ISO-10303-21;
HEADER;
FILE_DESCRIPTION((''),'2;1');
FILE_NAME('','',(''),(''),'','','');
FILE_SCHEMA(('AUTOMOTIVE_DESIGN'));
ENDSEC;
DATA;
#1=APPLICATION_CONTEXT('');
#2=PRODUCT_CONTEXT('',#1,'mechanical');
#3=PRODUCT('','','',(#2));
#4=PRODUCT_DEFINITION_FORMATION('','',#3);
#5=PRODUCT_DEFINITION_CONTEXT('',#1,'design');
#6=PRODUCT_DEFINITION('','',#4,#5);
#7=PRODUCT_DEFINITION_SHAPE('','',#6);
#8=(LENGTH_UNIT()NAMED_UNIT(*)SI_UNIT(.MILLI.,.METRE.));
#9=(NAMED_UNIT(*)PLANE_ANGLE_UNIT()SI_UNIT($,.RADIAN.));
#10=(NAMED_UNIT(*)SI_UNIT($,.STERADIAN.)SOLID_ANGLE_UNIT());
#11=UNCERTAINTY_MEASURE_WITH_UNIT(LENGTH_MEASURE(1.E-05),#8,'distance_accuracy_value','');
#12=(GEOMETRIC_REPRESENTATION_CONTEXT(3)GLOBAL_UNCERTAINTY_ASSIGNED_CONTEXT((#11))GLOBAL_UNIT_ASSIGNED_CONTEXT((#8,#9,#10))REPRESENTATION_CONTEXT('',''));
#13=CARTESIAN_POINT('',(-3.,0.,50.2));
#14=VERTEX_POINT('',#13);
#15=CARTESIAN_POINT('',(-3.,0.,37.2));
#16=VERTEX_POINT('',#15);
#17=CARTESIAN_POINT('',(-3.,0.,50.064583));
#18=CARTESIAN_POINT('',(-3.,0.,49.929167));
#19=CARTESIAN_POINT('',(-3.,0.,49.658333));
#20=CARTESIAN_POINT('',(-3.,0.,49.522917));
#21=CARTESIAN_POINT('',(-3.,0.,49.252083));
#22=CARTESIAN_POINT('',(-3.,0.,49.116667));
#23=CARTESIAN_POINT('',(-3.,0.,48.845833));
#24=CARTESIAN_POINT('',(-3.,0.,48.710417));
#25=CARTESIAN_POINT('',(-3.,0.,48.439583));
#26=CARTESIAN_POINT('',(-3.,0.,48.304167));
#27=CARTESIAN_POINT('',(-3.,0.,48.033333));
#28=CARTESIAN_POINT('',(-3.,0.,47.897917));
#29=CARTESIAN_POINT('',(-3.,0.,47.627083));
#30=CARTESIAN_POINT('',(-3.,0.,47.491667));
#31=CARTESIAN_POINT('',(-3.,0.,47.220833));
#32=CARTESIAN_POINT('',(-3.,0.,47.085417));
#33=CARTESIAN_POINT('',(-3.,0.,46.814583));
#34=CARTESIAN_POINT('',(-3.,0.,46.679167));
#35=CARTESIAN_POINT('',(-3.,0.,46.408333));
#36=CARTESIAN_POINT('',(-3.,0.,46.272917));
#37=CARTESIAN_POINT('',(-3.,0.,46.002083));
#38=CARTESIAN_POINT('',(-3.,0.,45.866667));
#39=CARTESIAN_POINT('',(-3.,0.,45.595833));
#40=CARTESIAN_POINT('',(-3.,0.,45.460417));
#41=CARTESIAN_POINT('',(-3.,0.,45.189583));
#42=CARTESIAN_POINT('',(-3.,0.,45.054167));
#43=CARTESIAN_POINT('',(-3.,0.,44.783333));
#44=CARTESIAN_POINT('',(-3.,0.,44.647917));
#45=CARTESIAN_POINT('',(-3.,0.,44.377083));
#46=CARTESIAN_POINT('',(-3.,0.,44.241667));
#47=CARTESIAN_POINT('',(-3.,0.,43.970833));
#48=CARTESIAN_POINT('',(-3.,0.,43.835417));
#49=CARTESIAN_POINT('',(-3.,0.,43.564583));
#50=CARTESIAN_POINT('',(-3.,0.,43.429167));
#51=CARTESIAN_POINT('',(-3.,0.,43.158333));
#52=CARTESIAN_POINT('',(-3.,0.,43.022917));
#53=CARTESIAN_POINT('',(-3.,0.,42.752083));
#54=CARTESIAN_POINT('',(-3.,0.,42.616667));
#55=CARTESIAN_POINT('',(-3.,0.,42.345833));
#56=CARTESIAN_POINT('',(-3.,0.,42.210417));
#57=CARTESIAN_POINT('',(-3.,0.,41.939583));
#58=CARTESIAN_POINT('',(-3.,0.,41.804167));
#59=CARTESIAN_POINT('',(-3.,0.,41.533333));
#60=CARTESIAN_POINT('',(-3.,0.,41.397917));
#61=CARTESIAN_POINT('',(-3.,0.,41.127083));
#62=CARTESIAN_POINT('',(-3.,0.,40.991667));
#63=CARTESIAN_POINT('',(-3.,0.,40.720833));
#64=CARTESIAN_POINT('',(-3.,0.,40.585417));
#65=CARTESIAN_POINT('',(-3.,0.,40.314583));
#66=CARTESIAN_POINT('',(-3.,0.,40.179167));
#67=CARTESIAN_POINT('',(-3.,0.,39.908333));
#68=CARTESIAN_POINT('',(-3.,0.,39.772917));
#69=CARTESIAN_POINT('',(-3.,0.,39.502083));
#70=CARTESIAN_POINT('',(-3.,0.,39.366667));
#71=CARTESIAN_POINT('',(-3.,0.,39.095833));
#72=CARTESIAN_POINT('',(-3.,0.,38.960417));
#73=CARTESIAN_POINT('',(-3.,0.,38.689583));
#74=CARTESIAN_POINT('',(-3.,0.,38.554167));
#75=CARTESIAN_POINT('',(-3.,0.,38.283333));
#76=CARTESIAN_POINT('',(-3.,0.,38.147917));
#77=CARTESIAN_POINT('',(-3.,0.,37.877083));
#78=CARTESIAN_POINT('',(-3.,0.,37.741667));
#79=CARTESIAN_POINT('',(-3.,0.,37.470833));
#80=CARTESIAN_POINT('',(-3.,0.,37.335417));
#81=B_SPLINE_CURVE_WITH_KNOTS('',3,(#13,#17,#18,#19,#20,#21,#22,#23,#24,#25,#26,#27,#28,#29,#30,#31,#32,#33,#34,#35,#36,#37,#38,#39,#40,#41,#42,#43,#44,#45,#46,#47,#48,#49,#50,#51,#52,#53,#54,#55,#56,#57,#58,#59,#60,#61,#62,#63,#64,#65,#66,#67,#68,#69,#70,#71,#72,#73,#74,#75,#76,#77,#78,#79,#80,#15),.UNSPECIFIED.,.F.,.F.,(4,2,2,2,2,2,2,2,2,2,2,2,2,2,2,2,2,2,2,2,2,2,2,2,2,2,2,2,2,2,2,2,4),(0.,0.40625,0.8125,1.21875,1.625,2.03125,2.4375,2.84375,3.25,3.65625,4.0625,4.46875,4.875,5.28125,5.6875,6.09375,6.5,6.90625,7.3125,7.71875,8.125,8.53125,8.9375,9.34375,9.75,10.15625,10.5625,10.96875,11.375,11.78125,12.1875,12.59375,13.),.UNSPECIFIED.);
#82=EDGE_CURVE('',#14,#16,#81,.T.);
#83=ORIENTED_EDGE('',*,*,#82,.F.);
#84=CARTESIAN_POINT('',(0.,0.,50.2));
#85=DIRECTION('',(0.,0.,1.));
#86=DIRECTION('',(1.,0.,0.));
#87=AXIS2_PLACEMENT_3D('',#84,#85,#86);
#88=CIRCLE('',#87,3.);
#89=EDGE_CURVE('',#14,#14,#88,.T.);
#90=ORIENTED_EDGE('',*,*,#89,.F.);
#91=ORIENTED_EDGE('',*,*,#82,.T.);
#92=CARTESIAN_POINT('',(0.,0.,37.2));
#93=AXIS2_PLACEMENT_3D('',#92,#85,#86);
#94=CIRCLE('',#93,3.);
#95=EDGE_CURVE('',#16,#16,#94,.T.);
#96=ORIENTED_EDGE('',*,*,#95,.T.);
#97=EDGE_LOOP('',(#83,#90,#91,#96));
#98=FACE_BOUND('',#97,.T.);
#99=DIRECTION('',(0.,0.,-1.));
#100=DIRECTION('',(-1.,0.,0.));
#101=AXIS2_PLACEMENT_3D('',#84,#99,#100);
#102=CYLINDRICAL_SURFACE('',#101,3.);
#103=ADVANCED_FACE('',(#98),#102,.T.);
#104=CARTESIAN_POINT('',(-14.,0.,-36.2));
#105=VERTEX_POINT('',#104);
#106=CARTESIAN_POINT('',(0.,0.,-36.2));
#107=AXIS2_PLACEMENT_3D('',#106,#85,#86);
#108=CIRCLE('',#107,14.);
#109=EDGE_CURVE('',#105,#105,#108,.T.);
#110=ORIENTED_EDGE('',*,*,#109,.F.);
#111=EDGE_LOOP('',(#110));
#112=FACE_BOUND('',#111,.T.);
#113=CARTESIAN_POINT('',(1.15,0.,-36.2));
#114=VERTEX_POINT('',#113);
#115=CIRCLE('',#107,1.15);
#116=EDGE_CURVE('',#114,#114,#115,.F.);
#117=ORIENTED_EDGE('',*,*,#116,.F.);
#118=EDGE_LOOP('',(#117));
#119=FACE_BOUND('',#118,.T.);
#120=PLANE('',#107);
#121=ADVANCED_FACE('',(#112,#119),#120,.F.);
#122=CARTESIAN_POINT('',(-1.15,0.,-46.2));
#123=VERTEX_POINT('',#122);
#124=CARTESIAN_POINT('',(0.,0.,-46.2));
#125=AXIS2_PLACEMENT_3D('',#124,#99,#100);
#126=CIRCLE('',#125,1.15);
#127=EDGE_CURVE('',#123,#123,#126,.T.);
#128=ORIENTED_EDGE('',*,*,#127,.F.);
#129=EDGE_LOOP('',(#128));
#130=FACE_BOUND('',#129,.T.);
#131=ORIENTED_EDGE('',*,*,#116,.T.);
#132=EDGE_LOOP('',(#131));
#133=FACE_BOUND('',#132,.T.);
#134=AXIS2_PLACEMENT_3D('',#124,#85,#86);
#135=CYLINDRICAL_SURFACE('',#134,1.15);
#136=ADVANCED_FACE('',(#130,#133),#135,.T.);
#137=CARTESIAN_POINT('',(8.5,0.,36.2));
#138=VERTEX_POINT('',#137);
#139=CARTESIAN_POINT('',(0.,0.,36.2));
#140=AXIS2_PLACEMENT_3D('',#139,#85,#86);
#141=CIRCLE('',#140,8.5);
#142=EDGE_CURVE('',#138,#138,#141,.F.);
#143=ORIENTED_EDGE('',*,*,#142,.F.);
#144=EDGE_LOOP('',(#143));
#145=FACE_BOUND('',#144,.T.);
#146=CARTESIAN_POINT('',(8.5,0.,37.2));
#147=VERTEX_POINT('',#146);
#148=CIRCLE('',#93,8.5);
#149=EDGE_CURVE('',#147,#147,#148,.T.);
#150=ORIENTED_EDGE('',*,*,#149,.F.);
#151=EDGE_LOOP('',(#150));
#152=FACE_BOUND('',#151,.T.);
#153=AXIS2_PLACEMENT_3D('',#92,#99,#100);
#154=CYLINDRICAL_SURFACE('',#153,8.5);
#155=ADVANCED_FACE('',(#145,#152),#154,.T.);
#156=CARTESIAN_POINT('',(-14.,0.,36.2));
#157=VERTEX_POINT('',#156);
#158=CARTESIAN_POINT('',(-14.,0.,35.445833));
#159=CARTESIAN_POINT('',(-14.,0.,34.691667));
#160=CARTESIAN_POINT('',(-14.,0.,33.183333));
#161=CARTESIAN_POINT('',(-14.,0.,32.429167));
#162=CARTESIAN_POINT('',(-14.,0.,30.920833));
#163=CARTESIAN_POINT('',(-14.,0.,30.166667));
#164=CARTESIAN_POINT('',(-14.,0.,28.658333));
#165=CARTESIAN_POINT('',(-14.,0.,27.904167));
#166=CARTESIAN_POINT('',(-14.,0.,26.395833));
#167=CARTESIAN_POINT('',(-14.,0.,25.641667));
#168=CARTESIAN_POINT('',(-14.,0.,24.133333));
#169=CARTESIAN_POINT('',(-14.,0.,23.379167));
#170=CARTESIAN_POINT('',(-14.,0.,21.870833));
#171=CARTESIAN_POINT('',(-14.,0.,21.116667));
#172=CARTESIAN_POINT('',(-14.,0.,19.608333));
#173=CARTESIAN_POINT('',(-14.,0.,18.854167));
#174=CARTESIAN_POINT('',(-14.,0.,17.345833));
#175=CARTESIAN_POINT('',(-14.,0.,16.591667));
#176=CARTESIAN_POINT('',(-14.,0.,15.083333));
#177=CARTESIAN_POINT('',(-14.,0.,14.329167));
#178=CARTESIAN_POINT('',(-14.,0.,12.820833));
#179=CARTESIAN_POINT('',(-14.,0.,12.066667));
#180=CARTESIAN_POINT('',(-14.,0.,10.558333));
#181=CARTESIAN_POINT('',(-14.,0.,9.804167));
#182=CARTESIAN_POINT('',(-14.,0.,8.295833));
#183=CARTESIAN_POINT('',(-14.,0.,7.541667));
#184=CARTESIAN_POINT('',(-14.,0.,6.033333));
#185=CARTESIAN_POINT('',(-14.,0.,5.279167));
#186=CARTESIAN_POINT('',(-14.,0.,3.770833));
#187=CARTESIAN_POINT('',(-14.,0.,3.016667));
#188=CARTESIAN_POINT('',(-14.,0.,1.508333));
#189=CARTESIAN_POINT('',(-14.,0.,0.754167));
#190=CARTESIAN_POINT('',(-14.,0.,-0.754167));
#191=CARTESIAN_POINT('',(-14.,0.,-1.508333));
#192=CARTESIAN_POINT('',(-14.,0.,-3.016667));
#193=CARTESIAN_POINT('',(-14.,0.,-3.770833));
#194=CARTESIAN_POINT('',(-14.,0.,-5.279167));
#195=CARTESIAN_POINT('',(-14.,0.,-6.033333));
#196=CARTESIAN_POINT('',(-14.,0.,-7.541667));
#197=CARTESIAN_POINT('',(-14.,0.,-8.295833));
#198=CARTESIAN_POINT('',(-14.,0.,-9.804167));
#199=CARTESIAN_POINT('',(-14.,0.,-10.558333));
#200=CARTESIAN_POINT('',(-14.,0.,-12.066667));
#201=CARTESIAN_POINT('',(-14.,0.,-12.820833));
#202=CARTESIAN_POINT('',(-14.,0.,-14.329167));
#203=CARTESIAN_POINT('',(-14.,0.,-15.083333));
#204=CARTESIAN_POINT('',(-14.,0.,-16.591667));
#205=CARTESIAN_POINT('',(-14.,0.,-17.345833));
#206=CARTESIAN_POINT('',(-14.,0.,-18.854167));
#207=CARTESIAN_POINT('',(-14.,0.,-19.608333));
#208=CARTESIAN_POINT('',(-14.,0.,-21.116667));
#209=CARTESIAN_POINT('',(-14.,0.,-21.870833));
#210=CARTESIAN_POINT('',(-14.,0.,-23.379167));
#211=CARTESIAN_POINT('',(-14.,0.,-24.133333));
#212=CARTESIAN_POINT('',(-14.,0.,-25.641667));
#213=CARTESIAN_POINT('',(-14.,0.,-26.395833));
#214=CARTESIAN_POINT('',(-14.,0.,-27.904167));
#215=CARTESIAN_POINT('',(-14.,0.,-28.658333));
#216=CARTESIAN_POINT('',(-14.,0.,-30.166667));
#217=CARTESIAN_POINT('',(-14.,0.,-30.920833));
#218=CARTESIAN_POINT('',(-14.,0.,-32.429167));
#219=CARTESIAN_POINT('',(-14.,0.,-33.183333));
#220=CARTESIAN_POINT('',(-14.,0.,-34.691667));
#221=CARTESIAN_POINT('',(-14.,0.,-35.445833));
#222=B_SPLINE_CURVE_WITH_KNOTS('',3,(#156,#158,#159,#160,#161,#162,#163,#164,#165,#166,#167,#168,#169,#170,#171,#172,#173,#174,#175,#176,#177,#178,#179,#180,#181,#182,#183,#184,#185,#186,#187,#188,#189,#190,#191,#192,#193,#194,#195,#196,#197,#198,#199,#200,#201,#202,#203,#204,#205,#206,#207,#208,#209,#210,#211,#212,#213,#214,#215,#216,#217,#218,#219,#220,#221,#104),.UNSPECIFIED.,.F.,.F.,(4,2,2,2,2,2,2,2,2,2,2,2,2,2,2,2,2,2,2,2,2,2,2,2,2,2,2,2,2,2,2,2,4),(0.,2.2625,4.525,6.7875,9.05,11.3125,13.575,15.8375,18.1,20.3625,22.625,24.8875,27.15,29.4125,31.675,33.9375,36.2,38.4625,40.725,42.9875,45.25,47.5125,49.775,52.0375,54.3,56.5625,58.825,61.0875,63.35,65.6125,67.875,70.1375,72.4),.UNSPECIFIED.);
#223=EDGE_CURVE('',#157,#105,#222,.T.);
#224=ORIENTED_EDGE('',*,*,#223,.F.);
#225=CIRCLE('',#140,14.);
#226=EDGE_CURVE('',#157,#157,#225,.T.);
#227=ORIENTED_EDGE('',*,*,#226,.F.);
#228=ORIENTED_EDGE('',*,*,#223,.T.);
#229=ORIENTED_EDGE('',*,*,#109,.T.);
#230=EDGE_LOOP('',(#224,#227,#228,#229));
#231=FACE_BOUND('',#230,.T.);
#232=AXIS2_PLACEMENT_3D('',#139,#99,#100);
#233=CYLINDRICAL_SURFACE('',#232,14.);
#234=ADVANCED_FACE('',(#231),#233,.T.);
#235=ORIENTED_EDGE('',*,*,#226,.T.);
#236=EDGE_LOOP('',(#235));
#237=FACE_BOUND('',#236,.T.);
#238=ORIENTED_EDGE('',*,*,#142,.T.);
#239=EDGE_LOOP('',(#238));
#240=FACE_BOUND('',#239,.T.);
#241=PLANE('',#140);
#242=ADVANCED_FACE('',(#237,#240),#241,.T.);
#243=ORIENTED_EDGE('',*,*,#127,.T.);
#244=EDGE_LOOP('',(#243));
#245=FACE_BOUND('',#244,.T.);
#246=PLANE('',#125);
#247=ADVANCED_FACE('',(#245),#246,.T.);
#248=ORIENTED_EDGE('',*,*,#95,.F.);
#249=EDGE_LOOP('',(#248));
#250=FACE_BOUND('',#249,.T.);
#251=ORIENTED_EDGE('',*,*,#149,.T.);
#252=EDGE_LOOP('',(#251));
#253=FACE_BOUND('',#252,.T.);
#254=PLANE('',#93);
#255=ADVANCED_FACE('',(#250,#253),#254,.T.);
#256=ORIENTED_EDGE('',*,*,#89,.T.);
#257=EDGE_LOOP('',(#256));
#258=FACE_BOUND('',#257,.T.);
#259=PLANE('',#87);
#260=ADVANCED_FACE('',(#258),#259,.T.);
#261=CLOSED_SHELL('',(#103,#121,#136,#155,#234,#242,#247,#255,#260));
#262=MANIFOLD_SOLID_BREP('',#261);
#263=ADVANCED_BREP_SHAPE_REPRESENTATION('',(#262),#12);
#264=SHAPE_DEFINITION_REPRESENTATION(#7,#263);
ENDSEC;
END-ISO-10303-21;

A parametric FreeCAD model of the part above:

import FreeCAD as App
import Part
import Sketcher

V = App.Vector
Q = App.Units.Quantity

doc = App.newDocument("Part")
body = doc.addObject("PartDesign::Body", "Body")

# Sketch on XY plane
sketch1 = body.newObject("Sketcher::SketchObject", "Sketch")
sketch1.AttachmentSupport = (doc.getObject("XY_Plane"), [""])
sketch1.MapMode = "FlatFace"
sketch1.addGeometry(Part.Circle(V(0, 0, 0), V(0, 0, 1), 14), False)
sketch1.addConstraint([
    Sketcher.Constraint("Coincident", 0, 3, -1, 1),
    Sketcher.Constraint("Diameter", 0, Q("28 mm")),
])
pad1 = body.newObject("PartDesign::Pad", "Pad")
pad1.Profile = sketch1
pad1.Length = 72.4
pad1.Midplane = True

# Sketch on XY plane
sketch2 = body.newObject("Sketcher::SketchObject", "Sketch001")
sketch2.AttachmentSupport = (doc.getObject("XY_Plane"), [""])
sketch2.MapMode = "FlatFace"
sketch2.AttachmentOffset = App.Placement(V(0, 0, 36.2), App.Rotation())
sketch2.addGeometry(Part.Circle(V(0, 0, 0), V(0, 0, 1), 8), False)
sketch2.addConstraint([
    Sketcher.Constraint("Coincident", 0, 3, -1, 1),
    Sketcher.Constraint("Diameter", 0, Q("17 mm")),
])
pad2 = body.newObject("PartDesign::Pad", "Pad001")
pad2.Profile = sketch2
pad2.Length = 2
pad2.Midplane = True

# Sketch on XY plane
sketch3 = body.newObject("Sketcher::SketchObject", "Sketch002")
sketch3.AttachmentSupport = (doc.getObject("XY_Plane"), [""])
sketch3.MapMode = "FlatFace"
sketch3.AttachmentOffset = App.Placement(V(0, 0, 37.2), App.Rotation())
sketch3.addGeometry(Part.Circle(V(0, 0, 0), V(0, 0, 1), 3), False)
sketch3.addConstraint([
    Sketcher.Constraint("Coincident", 0, 3, -1, 1),
    Sketcher.Constraint("Diameter", 0, Q("6 mm")),
])
pad3 = body.newObject("PartDesign::Pad", "Pad002")
pad3.Profile = sketch3
pad3.Length = 13

# Sketch on XY plane
sketch4 = body.newObject("Sketcher::SketchObject", "Sketch003")
sketch4.AttachmentSupport = (doc.getObject("XY_Plane"), [""])
sketch4.MapMode = "FlatFace"
sketch4.AttachmentOffset = App.Placement(V(0, 0, -36.2), App.Rotation())
sketch4.addGeometry(Part.Circle(V(0, 0, 0), V(0, 0, 1), 1.1), False)
sketch4.addConstraint([
    Sketcher.Constraint("Coincident", 0, 3, -1, 1),
    Sketcher.Constraint("Diameter", 0, Q("2.3 mm")),
])
pad4 = body.newObject("PartDesign::Pad", "Pad003")
pad4.Profile = sketch4
pad4.Length = 10
pad4.Reversed = True

doc.recompute()
